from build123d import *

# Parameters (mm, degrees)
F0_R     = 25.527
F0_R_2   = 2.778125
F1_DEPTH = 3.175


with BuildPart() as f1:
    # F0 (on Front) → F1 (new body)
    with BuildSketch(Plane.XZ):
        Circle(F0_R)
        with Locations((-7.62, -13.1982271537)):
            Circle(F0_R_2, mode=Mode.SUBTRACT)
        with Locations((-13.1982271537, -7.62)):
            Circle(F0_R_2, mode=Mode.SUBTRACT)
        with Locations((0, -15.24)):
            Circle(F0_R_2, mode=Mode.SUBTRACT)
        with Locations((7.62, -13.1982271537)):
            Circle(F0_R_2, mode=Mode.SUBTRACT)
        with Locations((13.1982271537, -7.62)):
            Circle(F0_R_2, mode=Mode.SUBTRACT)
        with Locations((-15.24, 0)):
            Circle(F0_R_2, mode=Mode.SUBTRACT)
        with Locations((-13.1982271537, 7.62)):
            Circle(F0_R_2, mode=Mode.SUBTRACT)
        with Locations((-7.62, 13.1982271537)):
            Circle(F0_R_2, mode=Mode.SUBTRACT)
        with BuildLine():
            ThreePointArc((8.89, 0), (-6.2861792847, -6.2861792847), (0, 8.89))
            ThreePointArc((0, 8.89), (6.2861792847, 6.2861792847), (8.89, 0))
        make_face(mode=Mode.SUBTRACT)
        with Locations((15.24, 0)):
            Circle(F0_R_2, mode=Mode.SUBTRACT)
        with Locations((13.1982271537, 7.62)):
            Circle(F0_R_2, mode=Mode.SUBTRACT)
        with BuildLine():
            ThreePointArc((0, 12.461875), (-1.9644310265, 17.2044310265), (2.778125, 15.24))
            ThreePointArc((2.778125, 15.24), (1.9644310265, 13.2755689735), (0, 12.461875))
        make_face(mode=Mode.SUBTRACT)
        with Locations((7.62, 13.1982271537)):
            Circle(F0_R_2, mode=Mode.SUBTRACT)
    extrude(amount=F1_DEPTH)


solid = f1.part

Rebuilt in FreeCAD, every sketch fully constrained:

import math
import FreeCAD as App
import Part
import Sketcher
Q = App.Units.Quantity

doc = App.newDocument("Part")
params = doc.addObject("Spreadsheet::Sheet", "Params")
for row, (alias, value) in enumerate([
    ("sketch1_diameter", "2.01 in"),
    ("sketch1_radius", "0.35 in"),
    ("sketch1_diameter2", "0.21875 in"),
    ("pad1_length", "0.125 in"),
], start=1):
    params.set(f"A{row}", alias)
    params.set(f"B{row}", "=" + value)
    params.setAlias(f"B{row}", alias)

body = doc.addObject("PartDesign::Body", "Body")

sketch1 = body.newObject("Sketcher::SketchObject", "Sketch")
sketch1.AttachmentSupport = (doc.getObject("XZ_Plane"), [""])
sketch1.MapMode = "FlatFace"
sketch1.addGeometry([
    Part.Circle(App.Vector(0, 0, 0), App.Vector(0, 0, 1), 25.527),
    Part.Circle(App.Vector(-7.62, -13.198227, 0), App.Vector(0, 0, 1), 2.778125),
    Part.Circle(App.Vector(-13.198227, -7.62, 0), App.Vector(0, 0, 1), 2.778125),
    Part.Circle(App.Vector(-15.24, 0, 0), App.Vector(0, 0, 1), 2.778125),
    Part.Circle(App.Vector(0, -15.24, 0), App.Vector(0, 0, 1), 2.778125),
    Part.Circle(App.Vector(7.62, -13.198227, 0), App.Vector(0, 0, 1), 2.778125),
    Part.Circle(App.Vector(13.198227, -7.62, 0), App.Vector(0, 0, 1), 2.778125),
    Part.Circle(App.Vector(15.24, 0, 0), App.Vector(0, 0, 1), 2.778125),
    Part.Circle(App.Vector(-13.198227, 7.62, 0), App.Vector(0, 0, 1), 2.778125),
    Part.Circle(App.Vector(-7.62, 13.198227, 0), App.Vector(0, 0, 1), 2.778125),
    Part.ArcOfCircle(Part.Circle(App.Vector(0, 15.24, 0), App.Vector(0, 0, 1), 2.778125), math.radians(-90), math.radians(0)),
    Part.ArcOfCircle(Part.Circle(App.Vector(0, 15.24, 0), App.Vector(0, 0, 1), 2.778125), math.radians(0), math.radians(270)),
    Part.ArcOfCircle(Part.Circle(App.Vector(0, 0, 0), App.Vector(0, 0, 1), 8.89), math.radians(0), math.radians(90)),
    Part.ArcOfCircle(Part.Circle(App.Vector(0, 0, 0), App.Vector(0, 0, 1), 8.89), math.radians(90), math.radians(360)),
    Part.Circle(App.Vector(13.198227, 7.62, 0), App.Vector(0, 0, 1), 2.778125),
    Part.Circle(App.Vector(7.62, 13.198227, 0), App.Vector(0, 0, 1), 2.778125),
], False)
sketch1.addConstraint([
    Sketcher.Constraint("Tangent", 10, 1, 11, 2),
    Sketcher.Constraint("Coincident", 11, 1, 10, 2),
    Sketcher.Constraint("Tangent", 12, 1, 13, 2),
    Sketcher.Constraint("Coincident", 13, 1, 12, 2),
    Sketcher.Constraint("Coincident", 0, 3, -1, 1),
    Sketcher.Constraint("Coincident", 12, 3, -1, 1),
    Sketcher.Constraint("Equal", 1, 2),
    Sketcher.Constraint("Equal", 2, 3),
    Sketcher.Constraint("Equal", 3, 4),
    Sketcher.Constraint("Equal", 4, 5),
    Sketcher.Constraint("Equal", 5, 6),
    Sketcher.Constraint("Equal", 6, 7),
    Sketcher.Constraint("Equal", 7, 8),
    Sketcher.Constraint("Equal", 8, 9),
    Sketcher.Constraint("Equal", 9, 10),
    Sketcher.Constraint("Equal", 11, 14),
    Sketcher.Constraint("Equal", 14, 15),
    Sketcher.Constraint("Symmetric", 3, 3, 7, 3, -1, 1),
    Sketcher.Constraint("Symmetric", 6, 3, 8, 3, -1, 1),
    Sketcher.Constraint("Symmetric", 5, 3, 9, 3, -1, 1),
    Sketcher.Constraint("Symmetric", 4, 3, 10, 3, -1, 1),
    Sketcher.Constraint("Symmetric", 2, 3, 14, 3, -1, 1),
    Sketcher.Constraint("Symmetric", 1, 3, 15, 3, -1, 1),
    Sketcher.Constraint("Symmetric", 1, 3, 5, 3, -2),
    Sketcher.Constraint("Symmetric", 2, 3, 6, 3, -2),
    Sketcher.Constraint("PointOnObject", 3, 3, -1),
    Sketcher.Constraint("PointOnObject", 4, 3, -2),
    Sketcher.Constraint("PointOnObject", 10, 1, -2),
    Sketcher.Constraint("PointOnObject", 12, 1, -1),
    Sketcher.Constraint("PointOnObject", 13, 1, -2),
    Sketcher.Constraint("Horizontal", 10, 3, 11, 1),
    Sketcher.Constraint("Diameter", 0, Q("2.01 in")),
    Sketcher.Constraint("Radius", 12, Q("0.35 in")),
    Sketcher.Constraint("Diameter", 1, Q("0.21875 in")),
    Sketcher.Constraint("DistanceX", 1, 3, -1, 1, Q("0.3 in")),
    Sketcher.Constraint("DistanceY", 2, 3, -1, 1, Q("0.3 in")),
    Sketcher.Constraint("DistanceX", 3, 3, -1, 1, Q("0.6 in")),
    Sketcher.Constraint("DistanceY", 4, 3, -1, 1, Q("0.6 in")),
    Sketcher.Constraint("DistanceY", 1, 3, -1, 1, 13.198227),
    Sketcher.Constraint("DistanceX", 2, 3, -1, 1, 13.198227),
])
sketch1.setExpression("Constraints[31]", "Params.sketch1_diameter")
sketch1.setExpression("Constraints[32]", "Params.sketch1_radius")
sketch1.setExpression("Constraints[33]", "Params.sketch1_diameter2")
pad1 = body.newObject("PartDesign::Pad", "Pad")
pad1.Profile = sketch1
pad1.setExpression("Length", "Params.pad1_length")

doc.recompute()
